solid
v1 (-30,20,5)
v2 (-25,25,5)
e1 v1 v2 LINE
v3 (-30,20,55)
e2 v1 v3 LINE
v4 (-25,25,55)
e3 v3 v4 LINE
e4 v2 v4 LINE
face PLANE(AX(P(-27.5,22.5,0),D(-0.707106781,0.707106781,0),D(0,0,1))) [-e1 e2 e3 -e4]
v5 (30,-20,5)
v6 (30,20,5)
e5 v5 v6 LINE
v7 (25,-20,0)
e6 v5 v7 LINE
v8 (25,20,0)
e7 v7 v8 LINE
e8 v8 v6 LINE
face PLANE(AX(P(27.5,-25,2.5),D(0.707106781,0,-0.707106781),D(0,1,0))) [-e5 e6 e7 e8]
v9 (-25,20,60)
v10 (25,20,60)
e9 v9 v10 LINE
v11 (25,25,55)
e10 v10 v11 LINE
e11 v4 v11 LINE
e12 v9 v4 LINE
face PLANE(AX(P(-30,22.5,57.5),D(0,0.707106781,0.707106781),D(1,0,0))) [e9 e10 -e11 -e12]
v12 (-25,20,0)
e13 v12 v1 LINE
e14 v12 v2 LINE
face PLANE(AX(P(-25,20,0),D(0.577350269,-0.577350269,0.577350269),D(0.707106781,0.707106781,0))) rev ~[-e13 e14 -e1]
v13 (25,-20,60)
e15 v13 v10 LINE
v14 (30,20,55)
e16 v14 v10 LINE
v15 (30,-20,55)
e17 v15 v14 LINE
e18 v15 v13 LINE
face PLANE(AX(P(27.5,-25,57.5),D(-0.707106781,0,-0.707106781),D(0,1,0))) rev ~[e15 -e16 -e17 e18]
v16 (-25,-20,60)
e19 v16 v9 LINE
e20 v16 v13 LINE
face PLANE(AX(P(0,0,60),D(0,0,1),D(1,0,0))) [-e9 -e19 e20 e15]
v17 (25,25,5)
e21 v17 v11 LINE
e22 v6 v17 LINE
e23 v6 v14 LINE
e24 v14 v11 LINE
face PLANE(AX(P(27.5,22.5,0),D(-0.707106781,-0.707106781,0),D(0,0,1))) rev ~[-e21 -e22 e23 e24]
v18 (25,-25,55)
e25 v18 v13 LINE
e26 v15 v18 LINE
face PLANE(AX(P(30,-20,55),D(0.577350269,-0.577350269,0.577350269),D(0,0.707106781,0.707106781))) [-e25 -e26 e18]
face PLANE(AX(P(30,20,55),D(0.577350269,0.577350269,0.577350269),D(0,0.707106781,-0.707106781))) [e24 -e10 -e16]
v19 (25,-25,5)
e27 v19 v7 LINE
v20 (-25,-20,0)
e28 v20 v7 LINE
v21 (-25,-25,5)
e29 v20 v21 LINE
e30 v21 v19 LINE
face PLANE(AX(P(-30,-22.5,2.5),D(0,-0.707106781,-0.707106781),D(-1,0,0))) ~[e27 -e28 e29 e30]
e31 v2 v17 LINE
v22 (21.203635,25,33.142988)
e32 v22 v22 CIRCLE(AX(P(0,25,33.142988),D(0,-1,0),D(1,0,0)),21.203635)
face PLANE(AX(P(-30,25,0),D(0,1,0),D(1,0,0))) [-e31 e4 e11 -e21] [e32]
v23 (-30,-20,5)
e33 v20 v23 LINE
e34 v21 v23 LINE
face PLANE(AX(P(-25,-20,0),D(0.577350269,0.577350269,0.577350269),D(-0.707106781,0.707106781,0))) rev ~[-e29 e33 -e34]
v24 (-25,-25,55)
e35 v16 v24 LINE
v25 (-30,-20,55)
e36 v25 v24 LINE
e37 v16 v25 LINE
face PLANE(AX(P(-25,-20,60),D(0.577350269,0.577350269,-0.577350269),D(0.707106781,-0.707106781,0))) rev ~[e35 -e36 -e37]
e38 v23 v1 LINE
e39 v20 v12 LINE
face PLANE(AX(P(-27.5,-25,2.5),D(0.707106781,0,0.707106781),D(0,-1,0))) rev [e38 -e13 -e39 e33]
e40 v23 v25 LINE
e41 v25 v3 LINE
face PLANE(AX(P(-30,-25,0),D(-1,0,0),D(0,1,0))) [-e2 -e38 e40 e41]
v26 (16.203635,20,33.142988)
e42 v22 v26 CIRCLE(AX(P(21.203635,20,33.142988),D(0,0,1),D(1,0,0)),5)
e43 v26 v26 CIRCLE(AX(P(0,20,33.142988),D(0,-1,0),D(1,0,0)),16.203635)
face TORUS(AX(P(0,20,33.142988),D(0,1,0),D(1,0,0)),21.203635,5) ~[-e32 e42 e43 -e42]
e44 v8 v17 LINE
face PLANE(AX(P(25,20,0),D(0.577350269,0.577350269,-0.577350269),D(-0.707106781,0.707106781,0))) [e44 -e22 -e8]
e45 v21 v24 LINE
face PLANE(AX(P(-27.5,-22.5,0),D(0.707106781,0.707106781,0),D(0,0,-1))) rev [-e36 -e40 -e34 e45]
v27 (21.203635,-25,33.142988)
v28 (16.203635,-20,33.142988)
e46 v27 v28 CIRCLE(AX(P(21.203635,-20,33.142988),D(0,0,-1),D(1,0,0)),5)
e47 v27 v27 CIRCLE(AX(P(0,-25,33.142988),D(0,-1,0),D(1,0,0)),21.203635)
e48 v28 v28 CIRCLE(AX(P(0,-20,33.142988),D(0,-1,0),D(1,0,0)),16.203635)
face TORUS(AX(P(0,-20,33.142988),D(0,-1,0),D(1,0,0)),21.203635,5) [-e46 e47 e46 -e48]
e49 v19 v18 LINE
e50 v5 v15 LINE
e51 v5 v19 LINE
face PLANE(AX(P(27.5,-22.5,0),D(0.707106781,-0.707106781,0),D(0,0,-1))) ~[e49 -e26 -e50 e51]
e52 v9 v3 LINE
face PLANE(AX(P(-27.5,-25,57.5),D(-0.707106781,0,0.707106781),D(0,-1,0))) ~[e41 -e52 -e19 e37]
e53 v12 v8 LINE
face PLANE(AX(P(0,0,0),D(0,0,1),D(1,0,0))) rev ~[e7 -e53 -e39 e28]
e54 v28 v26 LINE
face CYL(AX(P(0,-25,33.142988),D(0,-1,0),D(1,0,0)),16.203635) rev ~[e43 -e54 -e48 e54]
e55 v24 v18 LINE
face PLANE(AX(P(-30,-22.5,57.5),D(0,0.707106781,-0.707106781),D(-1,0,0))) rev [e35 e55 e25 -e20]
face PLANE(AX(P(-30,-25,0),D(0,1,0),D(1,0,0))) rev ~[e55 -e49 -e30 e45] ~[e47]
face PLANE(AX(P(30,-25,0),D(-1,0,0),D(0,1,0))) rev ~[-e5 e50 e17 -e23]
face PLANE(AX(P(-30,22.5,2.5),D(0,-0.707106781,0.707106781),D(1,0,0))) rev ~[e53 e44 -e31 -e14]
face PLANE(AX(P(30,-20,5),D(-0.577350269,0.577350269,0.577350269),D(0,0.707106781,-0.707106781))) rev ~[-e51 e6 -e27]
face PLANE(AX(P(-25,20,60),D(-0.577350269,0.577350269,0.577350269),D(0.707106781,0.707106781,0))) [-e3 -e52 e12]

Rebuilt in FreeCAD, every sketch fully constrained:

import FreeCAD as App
import Part
import Sketcher
from FreeCAD import Vector
Q = App.Units.Quantity


def edges_at(feature, points):
    """Names of the edges that pass closest to the given points."""
    edges = feature.Shape.Edges
    near = lambda p: min(range(len(edges)), key=lambda i: edges[i].distToShape(Part.Vertex(*p))[0])
    return sorted({f"Edge{near(p) + 1}" for p in points})

doc = App.newDocument("Part")
body = doc.addObject("PartDesign::Body", "Body")

# Sketch on XY plane
sketch1 = body.newObject("Sketcher::SketchObject", "Sketch")
sketch1.AttachmentSupport = (doc.getObject("XY_Plane"), [""])
sketch1.MapMode = "FlatFace"
sketch1.addGeometry(Part.LineSegment(Vector(-30, 25, 0), Vector(-30, -25, 0)), False)
sketch1.addGeometry(Part.LineSegment(Vector(-30, -25, 0), Vector(30, -25, 0)), False)
sketch1.addGeometry(Part.LineSegment(Vector(30, -25, 0), Vector(30, 25, 0)), False)
sketch1.addGeometry(Part.LineSegment(Vector(30, 25, 0), Vector(-30, 25, 0)), False)
sketch1.addConstraint(Sketcher.Constraint("Coincident", 0, 2, 1, 1))
sketch1.addConstraint(Sketcher.Constraint("Coincident", 1, 2, 2, 1))
sketch1.addConstraint(Sketcher.Constraint("Coincident", 2, 2, 3, 1))
sketch1.addConstraint(Sketcher.Constraint("Coincident", 3, 2, 0, 1))
sketch1.addConstraint(Sketcher.Constraint("Vertical", 0))
sketch1.addConstraint(Sketcher.Constraint("Horizontal", 1))
sketch1.addConstraint(Sketcher.Constraint("Vertical", 2))
sketch1.addConstraint(Sketcher.Constraint("Horizontal", 3))
sketch1.addConstraint(Sketcher.Constraint("Symmetric", 0, 2, 2, 2, -1, 1))
sketch1.addConstraint(Sketcher.Constraint("DistanceX", 1, 1, 1, 2, Q("60 mm")))
sketch1.addConstraint(Sketcher.Constraint("DistanceY", 0, 2, 0, 1, Q("50 mm")))
pad1 = body.newObject("PartDesign::Pad", "Pad")
pad1.Profile = sketch1
pad1.Length = 60

# Sketch on XZ plane
sketch2 = body.newObject("Sketcher::SketchObject", "Sketch001")
sketch2.AttachmentSupport = (doc.getObject("XZ_Plane"), [""])
sketch2.MapMode = "FlatFace"
sketch2.AttachmentOffset = App.Placement(Vector(0, 0, 25), App.Rotation())
sketch2.addGeometry(Part.Circle(Vector(0, 33, 0), Vector(0, 0, 1), 16), False)
sketch2.addConstraint(Sketcher.Constraint("PointOnObject", 0, 3, -2))
sketch2.addConstraint(Sketcher.Constraint("Diameter", 0, Q("32.40727 mm")))
sketch2.addConstraint(Sketcher.Constraint("DistanceY", -1, 1, 0, 3, Q("33.142988 mm")))
pocket1 = body.newObject("PartDesign::Pocket", "Pocket")
pocket1.Profile = sketch2
pocket1.Type = "ThroughAll"
doc.recompute()

fillet = body.newObject("PartDesign::Fillet", "Fillet")
fillet.Base = (pocket1, edges_at(pocket1, [(-16.204, -25, 33.143), (-16.204, 25, 33.143)]))
fillet.Radius = 5
doc.recompute()

chamfer = body.newObject("PartDesign::Chamfer", "Chamfer")
chamfer.Base = (fillet, edges_at(fillet, [
    (-30, 25, 30),
    (-30, -25, 30),
    (-30, 0, 60),
    (0, 25, 60),
    (0, -25, 60),
    (0, -25, 0),
    (-30, 0, 0),
    (30, -25, 30),
    (30, 0, 60),
    (30, 25, 30),
    (30, 0, 0),
    (0, 25, 0),
]))
chamfer.Size = 5

doc.recompute()
